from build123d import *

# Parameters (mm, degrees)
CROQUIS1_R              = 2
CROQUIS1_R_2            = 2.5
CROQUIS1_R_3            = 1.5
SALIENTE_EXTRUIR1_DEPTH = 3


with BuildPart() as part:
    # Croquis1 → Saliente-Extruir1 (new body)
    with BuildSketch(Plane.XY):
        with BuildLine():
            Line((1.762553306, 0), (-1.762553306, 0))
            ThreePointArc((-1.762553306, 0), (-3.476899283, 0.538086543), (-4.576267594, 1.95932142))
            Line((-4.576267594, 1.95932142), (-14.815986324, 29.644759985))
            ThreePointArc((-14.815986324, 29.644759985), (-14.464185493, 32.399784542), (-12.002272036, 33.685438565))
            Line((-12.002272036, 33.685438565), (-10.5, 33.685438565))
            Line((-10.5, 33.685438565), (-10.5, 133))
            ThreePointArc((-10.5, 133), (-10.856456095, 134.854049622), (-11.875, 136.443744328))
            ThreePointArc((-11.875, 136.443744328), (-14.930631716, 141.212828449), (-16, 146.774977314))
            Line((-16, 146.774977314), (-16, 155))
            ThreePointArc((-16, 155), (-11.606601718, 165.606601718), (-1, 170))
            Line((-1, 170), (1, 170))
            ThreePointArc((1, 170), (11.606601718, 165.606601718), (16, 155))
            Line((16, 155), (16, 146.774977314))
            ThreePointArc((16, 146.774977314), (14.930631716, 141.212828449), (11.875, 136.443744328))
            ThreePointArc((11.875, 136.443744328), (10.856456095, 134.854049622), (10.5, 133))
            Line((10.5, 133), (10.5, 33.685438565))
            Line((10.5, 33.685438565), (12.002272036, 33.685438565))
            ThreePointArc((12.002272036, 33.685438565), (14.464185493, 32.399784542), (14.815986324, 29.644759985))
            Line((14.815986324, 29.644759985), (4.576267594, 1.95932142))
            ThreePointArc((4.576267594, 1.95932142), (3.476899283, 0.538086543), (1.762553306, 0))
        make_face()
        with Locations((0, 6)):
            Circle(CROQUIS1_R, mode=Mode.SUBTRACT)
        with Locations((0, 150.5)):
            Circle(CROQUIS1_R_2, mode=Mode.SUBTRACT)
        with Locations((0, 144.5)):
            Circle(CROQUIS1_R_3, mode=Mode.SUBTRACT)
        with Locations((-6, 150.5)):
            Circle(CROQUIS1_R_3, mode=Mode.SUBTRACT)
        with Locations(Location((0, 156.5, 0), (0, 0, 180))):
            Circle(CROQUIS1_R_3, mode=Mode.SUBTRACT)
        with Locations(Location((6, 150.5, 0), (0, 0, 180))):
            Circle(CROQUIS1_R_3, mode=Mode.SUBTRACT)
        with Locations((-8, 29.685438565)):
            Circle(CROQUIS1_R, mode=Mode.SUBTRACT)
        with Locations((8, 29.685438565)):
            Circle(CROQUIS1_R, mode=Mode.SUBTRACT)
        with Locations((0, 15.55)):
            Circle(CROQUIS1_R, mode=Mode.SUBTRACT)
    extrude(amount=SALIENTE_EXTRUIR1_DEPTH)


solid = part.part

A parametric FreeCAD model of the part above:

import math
import FreeCAD as App
import Part
import Sketcher
from FreeCAD import Vector
Q = App.Units.Quantity

doc = App.newDocument("Part")
body = doc.addObject("PartDesign::Body", "Body")

sketch1 = body.newObject("Sketcher::SketchObject", "Sketch")
sketch1.AttachmentSupport = (doc.getObject("XY_Plane"), [""])
sketch1.MapMode = "FlatFace"
sketch1.addGeometry(Part.LineSegment(Vector(-1.762553, 0, 0), Vector(1.762553, 0, 0)), False)
sketch1.addGeometry(Part.ArcOfCircle(Part.Circle(Vector(1.762553, 3, 0), Vector(0, 0, 1), 3), math.radians(-90), math.radians(-20.297386)), False)
sketch1.addGeometry(Part.LineSegment(Vector(4.576268, 1.959321, 0), Vector(14.815986, 29.64476, 0)), False)
sketch1.addGeometry(Part.ArcOfCircle(Part.Circle(Vector(12.002272, 30.685439, 0), Vector(0, 0, 1), 3), math.radians(-20.297386), math.radians(90)), False)
sketch1.addGeometry(Part.LineSegment(Vector(12.002272, 33.685439, 0), Vector(10.5, 33.685439, 0)), False)
sketch1.addGeometry(Part.LineSegment(Vector(10.5, 33.685439, 0), Vector(10.5, 133, 0)), False)
sketch1.addGeometry(Part.ArcOfCircle(Part.Circle(Vector(15.5, 133, 0), Vector(0, 0, 1), 5), math.radians(136.468848), math.radians(180)), False)
sketch1.addGeometry(Part.ArcOfCircle(Part.Circle(Vector(1, 146.774977, 0), Vector(0, 0, 1), 15), math.radians(-43.531152), math.radians(0)), False)
sketch1.addGeometry(Part.LineSegment(Vector(16, 146.774977, 0), Vector(16, 155, 0)), False)
sketch1.addGeometry(Part.ArcOfCircle(Part.Circle(Vector(1, 155, 0), Vector(0, 0, 1), 15), math.radians(0), math.radians(90)), False)
sketch1.addGeometry(Part.LineSegment(Vector(1, 170, 0), Vector(-1, 170, 0)), False)
sketch1.addGeometry(Part.ArcOfCircle(Part.Circle(Vector(-1, 155, 0), Vector(0, 0, 1), 15), math.radians(90), math.radians(180)), False)
sketch1.addGeometry(Part.LineSegment(Vector(-16, 155, 0), Vector(-16, 146.774977, 0)), False)
sketch1.addGeometry(Part.ArcOfCircle(Part.Circle(Vector(-1, 146.774977, 0), Vector(0, 0, 1), 15), math.radians(180), math.radians(223.531152)), False)
sketch1.addGeometry(Part.ArcOfCircle(Part.Circle(Vector(-15.5, 133, 0), Vector(0, 0, 1), 5), math.radians(0), math.radians(43.531152)), False)
sketch1.addGeometry(Part.LineSegment(Vector(-10.5, 133, 0), Vector(-10.5, 33.685439, 0)), False)
sketch1.addGeometry(Part.LineSegment(Vector(-10.5, 33.685439, 0), Vector(-12.002272, 33.685439, 0)), False)
sketch1.addGeometry(Part.ArcOfCircle(Part.Circle(Vector(-12.002272, 30.685439, 0), Vector(0, 0, 1), 3), math.radians(90), math.radians(200.297386)), False)
sketch1.addGeometry(Part.LineSegment(Vector(-14.815986, 29.64476, 0), Vector(-4.576268, 1.959321, 0)), False)
sketch1.addGeometry(Part.ArcOfCircle(Part.Circle(Vector(-1.762553, 3, 0), Vector(0, 0, 1), 3), math.radians(-159.702614), math.radians(-90)), False)
sketch1.addGeometry(Part.Circle(Vector(8, 29.685439, 0), Vector(0, 0, 1), 2), False)
sketch1.addGeometry(Part.Circle(Vector(0, 6, 0), Vector(0, 0, 1), 2), False)
sketch1.addGeometry(Part.Circle(Vector(0, 15.55, 0), Vector(0, 0, 1), 2), False)
sketch1.addGeometry(Part.Circle(Vector(-8, 29.685439, 0), Vector(0, 0, 1), 2), False)
sketch1.addGeometry(Part.Circle(Vector(6, 150.5, 0), Vector(0, 0, 1), 1.5), False)
sketch1.addGeometry(Part.Circle(Vector(0, 144.5, 0), Vector(0, 0, 1), 1.5), False)
sketch1.addGeometry(Part.Circle(Vector(0, 150.5, 0), Vector(0, 0, 1), 2.5), False)
sketch1.addGeometry(Part.Circle(Vector(0, 156.5, 0), Vector(0, 0, 1), 1.5), False)
sketch1.addGeometry(Part.Circle(Vector(-6, 150.5, 0), Vector(0, 0, 1), 1.5), False)
sketch1.addConstraint(Sketcher.Constraint("Tangent", 0, 2, 1, 1))
sketch1.addConstraint(Sketcher.Constraint("Tangent", 1, 2, 2, 1))
sketch1.addConstraint(Sketcher.Constraint("Tangent", 2, 2, 3, 1))
sketch1.addConstraint(Sketcher.Constraint("Tangent", 3, 2, 4, 1))
sketch1.addConstraint(Sketcher.Constraint("Coincident", 4, 2, 5, 1))
sketch1.addConstraint(Sketcher.Constraint("Tangent", 5, 2, 6, 2))
sketch1.addConstraint(Sketcher.Constraint("Tangent", 6, 1, 7, 1))
sketch1.addConstraint(Sketcher.Constraint("Tangent", 7, 2, 8, 1))
sketch1.addConstraint(Sketcher.Constraint("Tangent", 8, 2, 9, 1))
sketch1.addConstraint(Sketcher.Constraint("Tangent", 9, 2, 10, 1))
sketch1.addConstraint(Sketcher.Constraint("Tangent", 10, 2, 11, 1))
sketch1.addConstraint(Sketcher.Constraint("Tangent", 11, 2, 12, 1))
sketch1.addConstraint(Sketcher.Constraint("Tangent", 12, 2, 13, 1))
sketch1.addConstraint(Sketcher.Constraint("Tangent", 13, 2, 14, 2))
sketch1.addConstraint(Sketcher.Constraint("Tangent", 14, 1, 15, 1))
sketch1.addConstraint(Sketcher.Constraint("Coincident", 15, 2, 16, 1))
sketch1.addConstraint(Sketcher.Constraint("Tangent", 16, 2, 17, 1))
sketch1.addConstraint(Sketcher.Constraint("Tangent", 17, 2, 18, 1))
sketch1.addConstraint(Sketcher.Constraint("Tangent", 18, 2, 19, 1))
sketch1.addConstraint(Sketcher.Constraint("Tangent", 19, 2, 0, 1))
sketch1.addConstraint(Sketcher.Constraint("Horizontal", 0))
sketch1.addConstraint(Sketcher.Constraint("Horizontal", 4))
sketch1.addConstraint(Sketcher.Constraint("Vertical", 5))
sketch1.addConstraint(Sketcher.Constraint("Vertical", 8))
sketch1.addConstraint(Sketcher.Constraint("Horizontal", 10))
sketch1.addConstraint(Sketcher.Constraint("Vertical", 12))
sketch1.addConstraint(Sketcher.Constraint("Vertical", 15))
sketch1.addConstraint(Sketcher.Constraint("Horizontal", 16))
sketch1.addConstraint(Sketcher.Constraint("Equal", 1, 3))
sketch1.addConstraint(Sketcher.Constraint("Equal", 7, 9))
sketch1.addConstraint(Sketcher.Constraint("Equal", 9, 11))
sketch1.addConstraint(Sketcher.Constraint("Equal", 11, 13))
sketch1.addConstraint(Sketcher.Constraint("Equal", 6, 14))
sketch1.addConstraint(Sketcher.Constraint("Equal", 3, 17))
sketch1.addConstraint(Sketcher.Constraint("Equal", 17, 19))
sketch1.addConstraint(Sketcher.Constraint("Equal", 20, 21))
sketch1.addConstraint(Sketcher.Constraint("Equal", 21, 22))
sketch1.addConstraint(Sketcher.Constraint("Equal", 22, 23))
sketch1.addConstraint(Sketcher.Constraint("Equal", 24, 25))
sketch1.addConstraint(Sketcher.Constraint("Equal", 25, 27))
sketch1.addConstraint(Sketcher.Constraint("Equal", 27, 28))
sketch1.addConstraint(Sketcher.Constraint("Symmetric", 0, 2, 19, 2, -1, 1))
sketch1.addConstraint(Sketcher.Constraint("Symmetric", 7, 3, 13, 3, -2))
sketch1.addConstraint(Sketcher.Constraint("Symmetric", 3, 3, 17, 3, -2))
sketch1.addConstraint(Sketcher.Constraint("Symmetric", 20, 3, 23, 3, -2))
sketch1.addConstraint(Sketcher.Constraint("Symmetric", 24, 3, 28, 3, -2))
sketch1.addConstraint(Sketcher.Constraint("PointOnObject", 21, 3, -2))
sketch1.addConstraint(Sketcher.Constraint("PointOnObject", 22, 3, -2))
sketch1.addConstraint(Sketcher.Constraint("PointOnObject", 25, 3, -2))
sketch1.addConstraint(Sketcher.Constraint("PointOnObject", 26, 3, -2))
sketch1.addConstraint(Sketcher.Constraint("PointOnObject", 27, 3, -2))
sketch1.addConstraint(Sketcher.Constraint("Horizontal", 6, 3, 14, 3))
sketch1.addConstraint(Sketcher.Constraint("Horizontal", 24, 3, 26, 3))
sketch1.addConstraint(Sketcher.Constraint("Diameter", 20, Q("4 mm")))
sketch1.addConstraint(Sketcher.Constraint("Diameter", 24, Q("3 mm")))
sketch1.addConstraint(Sketcher.Constraint("Diameter", 26, Q("5 mm")))
sketch1.addConstraint(Sketcher.Constraint("Radius", 1, Q("3 mm")))
sketch1.addConstraint(Sketcher.Constraint("Radius", 6, Q("5 mm")))
sketch1.addConstraint(Sketcher.Constraint("Radius", 7, Q("15 mm")))
sketch1.addConstraint(Sketcher.Constraint("DistanceX", 10, 2, 10, 1, Q("2 mm")))
sketch1.addConstraint(Sketcher.Constraint("DistanceY", -1, 1, 6, 3, Q("133 mm")))
sketch1.addConstraint(Sketcher.Constraint("DistanceY", -1, 1, 9, 3, Q("155 mm")))
sketch1.addConstraint(Sketcher.Constraint("DistanceX", -1, 1, 20, 3, Q("8 mm")))
sketch1.addConstraint(Sketcher.Constraint("DistanceY", -1, 1, 21, 3, Q("6 mm")))
sketch1.addConstraint(Sketcher.Constraint("DistanceX", -1, 1, 24, 3, Q("6 mm")))
sketch1.addConstraint(Sketcher.Constraint("DistanceX", 14, 3, 6, 3, Q("31 mm")))
sketch1.addConstraint(Sketcher.Constraint("DistanceY", 20, 3, 3, 3, Q("1 mm")))
sketch1.addConstraint(Sketcher.Constraint("DistanceY", 25, 3, 24, 3, Q("6 mm")))
sketch1.addConstraint(Sketcher.Constraint("DistanceY", 26, 3, 27, 3, Q("6 mm")))
sketch1.addConstraint(Sketcher.Constraint("DistanceY", -1, 1, 24, 3, Q("150.5 mm")))
sketch1.addConstraint(Sketcher.Constraint("DistanceY", -1, 1, 22, 3, Q("15.55 mm")))
sketch1.addConstraint(Sketcher.Constraint("DistanceY", 5, 1, 5, 2, Q("99.314561 mm")))
sketch1.addConstraint(Sketcher.Constraint("Distance", 2, Q("29.51839 mm")))
sketch1.addConstraint(Sketcher.Constraint("DistanceX", 0, 1, 0, 2, Q("3.525107 mm")))
pad1 = body.newObject("PartDesign::Pad", "Pad")
pad1.Profile = sketch1
pad1.Length = 3

doc.recompute()
